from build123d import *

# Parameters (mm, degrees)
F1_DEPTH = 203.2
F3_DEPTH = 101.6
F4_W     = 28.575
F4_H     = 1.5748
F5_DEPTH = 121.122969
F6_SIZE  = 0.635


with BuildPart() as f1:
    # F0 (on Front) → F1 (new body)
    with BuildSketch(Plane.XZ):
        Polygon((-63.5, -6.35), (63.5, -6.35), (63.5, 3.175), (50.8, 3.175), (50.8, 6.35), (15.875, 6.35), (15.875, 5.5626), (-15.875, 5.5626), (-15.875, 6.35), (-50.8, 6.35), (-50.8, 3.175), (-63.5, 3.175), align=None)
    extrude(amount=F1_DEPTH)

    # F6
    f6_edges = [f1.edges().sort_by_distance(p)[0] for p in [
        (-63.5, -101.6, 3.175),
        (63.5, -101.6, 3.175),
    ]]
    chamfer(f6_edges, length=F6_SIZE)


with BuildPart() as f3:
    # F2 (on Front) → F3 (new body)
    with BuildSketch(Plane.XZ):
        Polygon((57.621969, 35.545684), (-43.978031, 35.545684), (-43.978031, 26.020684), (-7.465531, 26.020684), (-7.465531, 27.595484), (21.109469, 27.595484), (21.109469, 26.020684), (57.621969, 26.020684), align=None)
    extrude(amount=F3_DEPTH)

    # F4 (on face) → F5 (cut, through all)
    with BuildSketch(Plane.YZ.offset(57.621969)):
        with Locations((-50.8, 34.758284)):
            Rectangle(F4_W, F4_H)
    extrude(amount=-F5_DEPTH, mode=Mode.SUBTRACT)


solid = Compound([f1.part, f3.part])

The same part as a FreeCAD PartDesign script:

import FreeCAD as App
import Part
import Sketcher
Q = App.Units.Quantity


def edges_at(feature, points):
    """Names of the edges that pass closest to the given points."""
    edges = feature.Shape.Edges
    near = lambda p: min(range(len(edges)), key=lambda i: edges[i].distToShape(Part.Vertex(*p))[0])
    return sorted({f"Edge{near(p) + 1}" for p in points})


def add_polygon(sketch, points):
    """Adds a closed chain of lines whose ends are joined by coincident constraints."""
    first, n = sketch.GeometryCount, len(points)
    for a, b in zip(points, points[1:] + points[:1]):
        sketch.addGeometry(Part.LineSegment(App.Vector(*a, 0), App.Vector(*b, 0)), False)
    for i in range(n):
        sketch.addConstraint(Sketcher.Constraint("Coincident", first + i, 2, first + (i + 1) % n, 1))

doc = App.newDocument("Part")
body = doc.addObject("PartDesign::Body", "Body")

# Sketch on XZ plane
sketch1 = body.newObject("Sketcher::SketchObject", "Sketch")
sketch1.AttachmentSupport = (doc.getObject("XZ_Plane"), [""])
sketch1.MapMode = "FlatFace"
add_polygon(sketch1, [(-63.5, -6.3), (63.5, -6.3), (63.5, 3.2), (50.8, 3.2), (50.8, 6.3), (15.9, 6.3), (15.9, 5.6), (-15.9, 5.6), (-15.9, 6.3), (-50.8, 6.3), (-50.8, 3.2), (-63.5, 3.2)])  # lines 0-11
sketch1.addConstraint(Sketcher.Constraint("Horizontal", 0))
sketch1.addConstraint(Sketcher.Constraint("Vertical", 1))
sketch1.addConstraint(Sketcher.Constraint("Horizontal", 2))
sketch1.addConstraint(Sketcher.Constraint("Vertical", 3))
sketch1.addConstraint(Sketcher.Constraint("Horizontal", 4))
sketch1.addConstraint(Sketcher.Constraint("Vertical", 5))
sketch1.addConstraint(Sketcher.Constraint("Horizontal", 6))
sketch1.addConstraint(Sketcher.Constraint("Vertical", 7))
sketch1.addConstraint(Sketcher.Constraint("Horizontal", 8))
sketch1.addConstraint(Sketcher.Constraint("Vertical", 9))
sketch1.addConstraint(Sketcher.Constraint("Horizontal", 10))
sketch1.addConstraint(Sketcher.Constraint("Vertical", 11))
sketch1.addConstraint(Sketcher.Constraint("Symmetric", 4, 2, 7, 2, -2))
sketch1.addConstraint(Sketcher.Constraint("Symmetric", 2, 2, 9, 2, -2))
sketch1.addConstraint(Sketcher.Constraint("Equal", 2, 10))
sketch1.addConstraint(Sketcher.Constraint("DistanceX", 0, 1, 0, 2, Q("5 in")))
sketch1.addConstraint(Sketcher.Constraint("DistanceX", 2, 2, 2, 1, Q("0.5 in")))
sketch1.addConstraint(Sketcher.Constraint("DistanceX", 6, 2, 6, 1, Q("1.25 in")))
sketch1.addConstraint(Sketcher.Constraint("DistanceY", 0, 2, 3, 2, Q("0.5 in")))
sketch1.addConstraint(Sketcher.Constraint("DistanceY", 1, 1, 1, 2, Q("0.375 in")))
sketch1.addConstraint(Sketcher.Constraint("DistanceY", 5, 2, 5, 1, Q("0.031 in")))
sketch1.addConstraint(Sketcher.Constraint("DistanceY", 0, 2, -1, 1, Q("0.25 in")))
pad1 = body.newObject("PartDesign::Pad", "Pad")
pad1.Profile = sketch1
pad1.Length = Q("8 in")
doc.recompute()

chamfer = body.newObject("PartDesign::Chamfer", "Chamfer")
chamfer.Base = (pad1, edges_at(pad1, [(-63.5, -101.6, 3.175), (63.5, -101.6, 3.175)]))
chamfer.Size = Q("0.025 in")
body2 = doc.addObject("PartDesign::Body", "Body001")

# Sketch on XZ plane
sketch2 = body2.newObject("Sketcher::SketchObject", "Sketch001")
sketch2.AttachmentSupport = (doc.getObject("XZ_Plane001"), [""])
sketch2.MapMode = "FlatFace"
add_polygon(sketch2, [(57.6, 35.5), (-44, 35.5), (-44, 26), (-7.5, 26), (-7.5, 27.6), (21.1, 27.6), (21.1, 26), (57.6, 26)])  # lines 0-7
sketch2.addConstraint(Sketcher.Constraint("Horizontal", 0))
sketch2.addConstraint(Sketcher.Constraint("Vertical", 1))
sketch2.addConstraint(Sketcher.Constraint("Horizontal", 2))
sketch2.addConstraint(Sketcher.Constraint("Vertical", 3))
sketch2.addConstraint(Sketcher.Constraint("Horizontal", 4))
sketch2.addConstraint(Sketcher.Constraint("Vertical", 5))
sketch2.addConstraint(Sketcher.Constraint("Horizontal", 6))
sketch2.addConstraint(Sketcher.Constraint("Vertical", 7))
sketch2.addConstraint(Sketcher.Constraint("Horizontal", 2, 2, 5, 2))
sketch2.addConstraint(Sketcher.Constraint("Equal", 2, 6))
sketch2.addConstraint(Sketcher.Constraint("DistanceX", 0, 2, 0, 1, Q("4 in")))
sketch2.addConstraint(Sketcher.Constraint("DistanceX", 2, 1, 2, 2, Q("1.4375 in")))
sketch2.addConstraint(Sketcher.Constraint("DistanceY", 1, 2, 1, 1, Q("0.375 in")))
sketch2.addConstraint(Sketcher.Constraint("DistanceY", 3, 1, 3, 2, Q("0.062 in")))
sketch2.addConstraint(Sketcher.Constraint("DistanceX", 0, 2, -1, 1, 43.978031))
sketch2.addConstraint(Sketcher.Constraint("DistanceY", -1, 1, 0, 2, 35.545684))
pad2 = body2.newObject("PartDesign::Pad", "Pad001")
pad2.Profile = sketch2
pad2.Length = Q("4 in")

# Sketch on YZ plane
sketch3 = body2.newObject("Sketcher::SketchObject", "Sketch002")
sketch3.AttachmentSupport = (doc.getObject("YZ_Plane001"), [""])
sketch3.MapMode = "FlatFace"
sketch3.AttachmentOffset = App.Placement(App.Vector(0, 0, 57.621969), App.Rotation())
add_polygon(sketch3, [(-65.1, 35.5), (-65.1, 34), (-36.5, 34), (-36.5, 35.5)])  # lines 0-3
sketch3.addConstraint(Sketcher.Constraint("Vertical", 0))
sketch3.addConstraint(Sketcher.Constraint("Horizontal", 1))
sketch3.addConstraint(Sketcher.Constraint("Vertical", 2))
sketch3.addConstraint(Sketcher.Constraint("Horizontal", 3))
sketch3.addConstraint(Sketcher.Constraint("DistanceX", 1, 1, 1, 2, Q("1.125 in")))
sketch3.addConstraint(Sketcher.Constraint("DistanceY", 0, 2, 0, 1, Q("0.062 in")))
sketch3.addConstraint(Sketcher.Constraint("DistanceX", 0, 2, -1, 1, Q("2.5625 in")))
sketch3.addConstraint(Sketcher.Constraint("DistanceY", -1, 1, 0, 2, 33.970884))
pocket1 = body2.newObject("PartDesign::Pocket", "Pocket")
pocket1.Profile = sketch3
pocket1.Type = "ThroughAll"

doc.recompute()
